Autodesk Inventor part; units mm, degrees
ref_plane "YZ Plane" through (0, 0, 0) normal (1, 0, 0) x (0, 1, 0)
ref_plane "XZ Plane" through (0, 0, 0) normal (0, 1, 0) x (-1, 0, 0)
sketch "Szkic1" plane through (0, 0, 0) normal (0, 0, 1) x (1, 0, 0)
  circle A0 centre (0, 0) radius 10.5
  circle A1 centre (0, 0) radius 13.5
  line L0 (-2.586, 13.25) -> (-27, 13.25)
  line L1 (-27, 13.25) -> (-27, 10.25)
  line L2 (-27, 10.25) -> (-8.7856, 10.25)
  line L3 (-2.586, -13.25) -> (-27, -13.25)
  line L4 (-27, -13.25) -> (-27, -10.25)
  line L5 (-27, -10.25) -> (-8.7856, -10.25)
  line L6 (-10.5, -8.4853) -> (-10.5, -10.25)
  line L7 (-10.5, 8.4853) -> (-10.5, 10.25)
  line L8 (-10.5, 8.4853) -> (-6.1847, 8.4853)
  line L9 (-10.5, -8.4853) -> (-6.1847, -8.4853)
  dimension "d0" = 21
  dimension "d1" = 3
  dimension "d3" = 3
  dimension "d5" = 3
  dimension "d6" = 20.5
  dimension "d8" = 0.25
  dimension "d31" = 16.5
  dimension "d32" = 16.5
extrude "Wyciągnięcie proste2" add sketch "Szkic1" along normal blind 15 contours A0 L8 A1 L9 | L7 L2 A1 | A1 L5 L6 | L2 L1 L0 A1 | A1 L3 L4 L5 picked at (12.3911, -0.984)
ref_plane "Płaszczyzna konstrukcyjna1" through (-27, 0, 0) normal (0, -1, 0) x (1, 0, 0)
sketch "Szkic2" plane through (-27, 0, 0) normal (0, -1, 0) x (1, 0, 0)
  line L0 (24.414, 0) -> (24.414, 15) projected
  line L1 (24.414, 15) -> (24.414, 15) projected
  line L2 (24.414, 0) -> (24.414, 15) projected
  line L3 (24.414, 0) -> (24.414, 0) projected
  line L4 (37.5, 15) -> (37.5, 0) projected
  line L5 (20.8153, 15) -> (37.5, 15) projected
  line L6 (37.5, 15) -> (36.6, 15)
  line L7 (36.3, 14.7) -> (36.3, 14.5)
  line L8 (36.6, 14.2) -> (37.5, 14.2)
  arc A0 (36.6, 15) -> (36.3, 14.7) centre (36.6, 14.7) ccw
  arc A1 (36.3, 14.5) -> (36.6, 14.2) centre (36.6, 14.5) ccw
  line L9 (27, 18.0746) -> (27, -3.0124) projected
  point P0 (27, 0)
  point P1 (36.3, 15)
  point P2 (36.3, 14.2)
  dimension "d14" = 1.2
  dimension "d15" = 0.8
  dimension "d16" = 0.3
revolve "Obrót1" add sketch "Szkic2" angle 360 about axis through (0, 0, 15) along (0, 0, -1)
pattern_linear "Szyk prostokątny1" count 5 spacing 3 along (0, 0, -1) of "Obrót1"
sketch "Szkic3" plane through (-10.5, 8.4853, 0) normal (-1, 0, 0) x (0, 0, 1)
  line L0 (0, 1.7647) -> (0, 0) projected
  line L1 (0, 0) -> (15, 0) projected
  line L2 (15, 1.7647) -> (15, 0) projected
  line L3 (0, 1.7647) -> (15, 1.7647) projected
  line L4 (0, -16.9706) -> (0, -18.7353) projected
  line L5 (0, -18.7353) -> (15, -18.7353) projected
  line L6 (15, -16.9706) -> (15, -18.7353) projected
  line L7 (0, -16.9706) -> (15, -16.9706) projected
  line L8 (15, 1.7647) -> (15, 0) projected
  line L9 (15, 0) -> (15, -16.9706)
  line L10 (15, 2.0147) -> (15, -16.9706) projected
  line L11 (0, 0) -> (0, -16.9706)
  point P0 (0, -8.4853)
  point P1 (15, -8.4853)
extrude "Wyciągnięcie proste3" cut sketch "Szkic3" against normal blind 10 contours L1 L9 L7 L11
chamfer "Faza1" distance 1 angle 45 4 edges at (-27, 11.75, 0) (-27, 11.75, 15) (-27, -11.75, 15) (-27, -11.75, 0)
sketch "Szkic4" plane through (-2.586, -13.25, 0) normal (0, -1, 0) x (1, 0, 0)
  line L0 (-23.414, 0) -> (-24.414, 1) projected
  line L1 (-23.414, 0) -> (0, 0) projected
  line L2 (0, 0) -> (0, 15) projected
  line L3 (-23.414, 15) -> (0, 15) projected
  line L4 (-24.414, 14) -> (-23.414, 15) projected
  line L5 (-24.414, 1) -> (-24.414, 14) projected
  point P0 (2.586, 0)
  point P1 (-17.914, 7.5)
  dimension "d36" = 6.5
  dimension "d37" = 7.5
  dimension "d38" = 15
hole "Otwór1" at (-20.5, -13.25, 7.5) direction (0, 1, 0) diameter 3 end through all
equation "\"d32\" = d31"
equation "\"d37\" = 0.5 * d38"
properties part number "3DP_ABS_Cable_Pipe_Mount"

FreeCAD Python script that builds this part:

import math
import FreeCAD as App
import Part
import Sketcher

V = App.Vector


def edges_at(feature, points):
    """Names of the edges that pass closest to the given points."""
    edges = feature.Shape.Edges
    near = lambda p: min(range(len(edges)), key=lambda i: edges[i].distToShape(Part.Vertex(*p))[0])
    return sorted({f"Edge{near(p) + 1}" for p in points})

doc = App.newDocument("Part")
body = doc.addObject("PartDesign::Body", "Body")

# Sketch on XY plane
sketch1 = body.newObject("Sketcher::SketchObject", "Sketch")
sketch1.AttachmentSupport = (doc.getObject("XY_Plane"), [""])
sketch1.MapMode = "FlatFace"
sketch1.addGeometry([
    Part.ArcOfCircle(Part.Circle(V(0, 0, 0), V(0, 0, 1), 10.5), math.radians(-126.08727), math.radians(126.08727)),  # 0
    Part.LineSegment(V(-6.1847, -8.4853, 0), V(-10.5, -8.4853, 0)),  # 1
    Part.LineSegment(V(-10.5, -8.4853, 0), V(-10.5, -10.25, 0)),  # 2
    Part.LineSegment(V(-10.5, -10.25, 0), V(-27, -10.25, 0)),  # 3
    Part.LineSegment(V(-27, -10.25, 0), V(-27, -13.25, 0)),  # 4
    Part.LineSegment(V(-27, -13.25, 0), V(-2.586, -13.25, 0)),  # 5
    Part.ArcOfCircle(Part.Circle(V(0, 0, 0), V(0, 0, 1), 13.5), math.radians(-101.043582), math.radians(101.043582)),  # 6
    Part.LineSegment(V(-2.586, 13.25, 0), V(-27, 13.25, 0)),  # 7
    Part.LineSegment(V(-27, 13.25, 0), V(-27, 10.25, 0)),  # 8
    Part.LineSegment(V(-27, 10.25, 0), V(-10.5, 10.25, 0)),  # 9
    Part.LineSegment(V(-10.5, 10.25, 0), V(-10.5, 8.4853, 0)),  # 10
    Part.LineSegment(V(-10.5, 8.4853, 0), V(-6.1847, 8.4853, 0)),  # 11
], False)
sketch1.addConstraint([
    Sketcher.Constraint("Coincident", 0, 1, 1, 1),
    Sketcher.Constraint("Coincident", 1, 2, 2, 1),
    Sketcher.Constraint("Coincident", 2, 2, 3, 1),
    Sketcher.Constraint("Coincident", 3, 2, 4, 1),
    Sketcher.Constraint("Coincident", 4, 2, 5, 1),
    Sketcher.Constraint("Coincident", 5, 2, 6, 1),
    Sketcher.Constraint("Coincident", 6, 2, 7, 1),
    Sketcher.Constraint("Coincident", 7, 2, 8, 1),
    Sketcher.Constraint("Coincident", 8, 2, 9, 1),
    Sketcher.Constraint("Coincident", 9, 2, 10, 1),
    Sketcher.Constraint("Coincident", 10, 2, 11, 1),
    Sketcher.Constraint("Coincident", 11, 2, 0, 2),
    Sketcher.Constraint("Horizontal", 1),
    Sketcher.Constraint("Vertical", 2),
    Sketcher.Constraint("Horizontal", 3),
    Sketcher.Constraint("Vertical", 4),
    Sketcher.Constraint("Horizontal", 5),
    Sketcher.Constraint("Horizontal", 7),
    Sketcher.Constraint("Vertical", 8),
    Sketcher.Constraint("Horizontal", 9),
    Sketcher.Constraint("Vertical", 10),
    Sketcher.Constraint("Horizontal", 11),
    Sketcher.Constraint("Coincident", 0, 3, -1, 1),
    Sketcher.Constraint("Coincident", 6, 3, -1, 1),
    Sketcher.Constraint("Symmetric", 4, 2, 7, 2, -1),
    Sketcher.Constraint("Symmetric", 2, 2, 9, 2, -1),
    Sketcher.Constraint("Vertical", 0, 1, 11, 2),
    Sketcher.Constraint("Radius", 0, 10.5),
    Sketcher.Constraint("DistanceY", 4, 2, 4, 1, 3.0),
    Sketcher.Constraint("DistanceX", 3, 2, 3, 1, 16.5),
    Sketcher.Constraint("Radius", 6, 13.5),
    Sketcher.Constraint("DistanceY", 3, 2, 8, 2, 20.5),
    Sketcher.Constraint("DistanceX", 3, 2, -1, 1, 27.0),
    Sketcher.Constraint("DistanceX", 1, 2, 1, 1, 4.3153),
])
pad1 = body.newObject("PartDesign::Pad", "Pad")
pad1.Profile = sketch1
pad1.Length = 15

# Sketch on XZ plane
sketch2 = body.newObject("Sketcher::SketchObject", "Sketch001")
sketch2.AttachmentSupport = (doc.getObject("XZ_Plane"), [""])
sketch2.MapMode = "FlatFace"
sketch2.addGeometry([
    Part.LineSegment(V(10.5, 14.2, 0), V(10.5, 15, 0)),  # 0
    Part.LineSegment(V(10.5, 15, 0), V(9.6, 15, 0)),  # 1
    Part.ArcOfCircle(Part.Circle(V(9.6, 14.7, 0), V(0, 0, 1), 0.3), math.radians(90), math.radians(180)),  # 2
    Part.LineSegment(V(9.3, 14.7, 0), V(9.3, 14.5, 0)),  # 3
    Part.ArcOfCircle(Part.Circle(V(9.6, 14.5, 0), V(0, 0, 1), 0.3), math.radians(180), math.radians(270)),  # 4
    Part.LineSegment(V(9.6, 14.2, 0), V(10.5, 14.2, 0)),  # 5
], False)
sketch2.addConstraint([
    Sketcher.Constraint("Coincident", 0, 2, 1, 1),
    Sketcher.Constraint("Tangent", 1, 2, 2, 1),
    Sketcher.Constraint("Tangent", 2, 2, 3, 1),
    Sketcher.Constraint("Tangent", 3, 2, 4, 1),
    Sketcher.Constraint("Tangent", 4, 2, 5, 1),
    Sketcher.Constraint("Coincident", 5, 2, 0, 1),
    Sketcher.Constraint("Vertical", 0),
    Sketcher.Constraint("Horizontal", 1),
    Sketcher.Constraint("Vertical", 3),
    Sketcher.Constraint("Horizontal", 5),
    Sketcher.Constraint("Equal", 2, 4),
    Sketcher.Constraint("Radius", 2, 0.3),
    Sketcher.Constraint("DistanceY", 0, 1, 0, 2, 0.8),
    Sketcher.Constraint("DistanceX", 2, 2, 0, 2, 1.2),
    Sketcher.Constraint("DistanceY", -1, 1, 0, 2, 15.0),
    Sketcher.Constraint("DistanceX", -1, 1, 2, 3, 9.6),
])
revolution = body.newObject("PartDesign::Revolution", "Revolution")
revolution.Profile = sketch2
revolution.ReferenceAxis = (sketch2, ["V_Axis"])
revolution.Angle = 360
doc.recompute()

linearpattern = body.newObject("PartDesign::LinearPattern", "LinearPattern")
linearpattern.Originals = [revolution]
linearpattern.Direction = (doc.getObject("Z_Axis"), [""])
linearpattern.Mode = "offset"
linearpattern.Offset = 3
linearpattern.Occurrences = 5
linearpattern.Reversed = True
body.Tip = linearpattern

# Sketch on YZ plane
sketch3 = body.newObject("Sketcher::SketchObject", "Sketch002")
sketch3.AttachmentSupport = (doc.getObject("YZ_Plane"), [""])
sketch3.MapMode = "FlatFace"
sketch3.AttachmentOffset = App.Placement(V(0, 0, -10.5), App.Rotation())
sketch3.addGeometry([
    Part.LineSegment(V(8.4853, 15, 0), V(8.4853, 0, 0)),
    Part.LineSegment(V(8.4853, 0, 0), V(-8.4853, 0, 0)),
    Part.LineSegment(V(-8.4853, 0, 0), V(-8.4853, 15, 0)),
    Part.LineSegment(V(-8.4853, 15, 0), V(8.4853, 15, 0)),
], False)
sketch3.addConstraint([
    Sketcher.Constraint("Coincident", 0, 2, 1, 1),
    Sketcher.Constraint("Coincident", 1, 2, 2, 1),
    Sketcher.Constraint("Coincident", 2, 2, 3, 1),
    Sketcher.Constraint("Coincident", 3, 2, 0, 1),
    Sketcher.Constraint("Vertical", 0),
    Sketcher.Constraint("Horizontal", 1),
    Sketcher.Constraint("Vertical", 2),
    Sketcher.Constraint("Horizontal", 3),
    Sketcher.Constraint("Symmetric", 0, 2, 1, 2, -1, 1),
    Sketcher.Constraint("DistanceY", 0, 2, 0, 1, 15.0),
    Sketcher.Constraint("DistanceX", 1, 2, 1, 1, 16.9706),
])
pocket1 = body.newObject("PartDesign::Pocket", "Pocket")
pocket1.Profile = sketch3
pocket1.Length = 10
pocket1.Reversed = True
doc.recompute()

chamfer = body.newObject("PartDesign::Chamfer", "Chamfer")
chamfer.Base = (pocket1, edges_at(pocket1, [
    (-27, 11.75, 0),
    (-27, 11.75, 15),
    (-27, -11.75, 15),
    (-27, -11.75, 0),
]))
chamfer.Size = 1

# Sketch on XZ plane
sketch4 = body.newObject("Sketcher::SketchObject", "Sketch003")
sketch4.AttachmentSupport = (doc.getObject("XZ_Plane"), [""])
sketch4.MapMode = "FlatFace"
sketch4.AttachmentOffset = App.Placement(V(0, 0, 13.25), App.Rotation())
sketch4.addGeometry(Part.Circle(V(-20.5, 7.5, 0), V(0, 0, 1), 1.5), False)
sketch4.addConstraint([
    Sketcher.Constraint("Diameter", 0, 3.0),
    Sketcher.Constraint("DistanceX", 0, 3, -1, 1, 20.5),
    Sketcher.Constraint("DistanceY", -1, 1, 0, 3, 7.5),
])
doc.recompute()
hole = body.newObject("PartDesign::Hole", "Hole")
hole.Profile = sketch4
hole.ThreadType = "None"
hole.Diameter = 3
hole.DepthType = "ThroughAll"

doc.recompute()
